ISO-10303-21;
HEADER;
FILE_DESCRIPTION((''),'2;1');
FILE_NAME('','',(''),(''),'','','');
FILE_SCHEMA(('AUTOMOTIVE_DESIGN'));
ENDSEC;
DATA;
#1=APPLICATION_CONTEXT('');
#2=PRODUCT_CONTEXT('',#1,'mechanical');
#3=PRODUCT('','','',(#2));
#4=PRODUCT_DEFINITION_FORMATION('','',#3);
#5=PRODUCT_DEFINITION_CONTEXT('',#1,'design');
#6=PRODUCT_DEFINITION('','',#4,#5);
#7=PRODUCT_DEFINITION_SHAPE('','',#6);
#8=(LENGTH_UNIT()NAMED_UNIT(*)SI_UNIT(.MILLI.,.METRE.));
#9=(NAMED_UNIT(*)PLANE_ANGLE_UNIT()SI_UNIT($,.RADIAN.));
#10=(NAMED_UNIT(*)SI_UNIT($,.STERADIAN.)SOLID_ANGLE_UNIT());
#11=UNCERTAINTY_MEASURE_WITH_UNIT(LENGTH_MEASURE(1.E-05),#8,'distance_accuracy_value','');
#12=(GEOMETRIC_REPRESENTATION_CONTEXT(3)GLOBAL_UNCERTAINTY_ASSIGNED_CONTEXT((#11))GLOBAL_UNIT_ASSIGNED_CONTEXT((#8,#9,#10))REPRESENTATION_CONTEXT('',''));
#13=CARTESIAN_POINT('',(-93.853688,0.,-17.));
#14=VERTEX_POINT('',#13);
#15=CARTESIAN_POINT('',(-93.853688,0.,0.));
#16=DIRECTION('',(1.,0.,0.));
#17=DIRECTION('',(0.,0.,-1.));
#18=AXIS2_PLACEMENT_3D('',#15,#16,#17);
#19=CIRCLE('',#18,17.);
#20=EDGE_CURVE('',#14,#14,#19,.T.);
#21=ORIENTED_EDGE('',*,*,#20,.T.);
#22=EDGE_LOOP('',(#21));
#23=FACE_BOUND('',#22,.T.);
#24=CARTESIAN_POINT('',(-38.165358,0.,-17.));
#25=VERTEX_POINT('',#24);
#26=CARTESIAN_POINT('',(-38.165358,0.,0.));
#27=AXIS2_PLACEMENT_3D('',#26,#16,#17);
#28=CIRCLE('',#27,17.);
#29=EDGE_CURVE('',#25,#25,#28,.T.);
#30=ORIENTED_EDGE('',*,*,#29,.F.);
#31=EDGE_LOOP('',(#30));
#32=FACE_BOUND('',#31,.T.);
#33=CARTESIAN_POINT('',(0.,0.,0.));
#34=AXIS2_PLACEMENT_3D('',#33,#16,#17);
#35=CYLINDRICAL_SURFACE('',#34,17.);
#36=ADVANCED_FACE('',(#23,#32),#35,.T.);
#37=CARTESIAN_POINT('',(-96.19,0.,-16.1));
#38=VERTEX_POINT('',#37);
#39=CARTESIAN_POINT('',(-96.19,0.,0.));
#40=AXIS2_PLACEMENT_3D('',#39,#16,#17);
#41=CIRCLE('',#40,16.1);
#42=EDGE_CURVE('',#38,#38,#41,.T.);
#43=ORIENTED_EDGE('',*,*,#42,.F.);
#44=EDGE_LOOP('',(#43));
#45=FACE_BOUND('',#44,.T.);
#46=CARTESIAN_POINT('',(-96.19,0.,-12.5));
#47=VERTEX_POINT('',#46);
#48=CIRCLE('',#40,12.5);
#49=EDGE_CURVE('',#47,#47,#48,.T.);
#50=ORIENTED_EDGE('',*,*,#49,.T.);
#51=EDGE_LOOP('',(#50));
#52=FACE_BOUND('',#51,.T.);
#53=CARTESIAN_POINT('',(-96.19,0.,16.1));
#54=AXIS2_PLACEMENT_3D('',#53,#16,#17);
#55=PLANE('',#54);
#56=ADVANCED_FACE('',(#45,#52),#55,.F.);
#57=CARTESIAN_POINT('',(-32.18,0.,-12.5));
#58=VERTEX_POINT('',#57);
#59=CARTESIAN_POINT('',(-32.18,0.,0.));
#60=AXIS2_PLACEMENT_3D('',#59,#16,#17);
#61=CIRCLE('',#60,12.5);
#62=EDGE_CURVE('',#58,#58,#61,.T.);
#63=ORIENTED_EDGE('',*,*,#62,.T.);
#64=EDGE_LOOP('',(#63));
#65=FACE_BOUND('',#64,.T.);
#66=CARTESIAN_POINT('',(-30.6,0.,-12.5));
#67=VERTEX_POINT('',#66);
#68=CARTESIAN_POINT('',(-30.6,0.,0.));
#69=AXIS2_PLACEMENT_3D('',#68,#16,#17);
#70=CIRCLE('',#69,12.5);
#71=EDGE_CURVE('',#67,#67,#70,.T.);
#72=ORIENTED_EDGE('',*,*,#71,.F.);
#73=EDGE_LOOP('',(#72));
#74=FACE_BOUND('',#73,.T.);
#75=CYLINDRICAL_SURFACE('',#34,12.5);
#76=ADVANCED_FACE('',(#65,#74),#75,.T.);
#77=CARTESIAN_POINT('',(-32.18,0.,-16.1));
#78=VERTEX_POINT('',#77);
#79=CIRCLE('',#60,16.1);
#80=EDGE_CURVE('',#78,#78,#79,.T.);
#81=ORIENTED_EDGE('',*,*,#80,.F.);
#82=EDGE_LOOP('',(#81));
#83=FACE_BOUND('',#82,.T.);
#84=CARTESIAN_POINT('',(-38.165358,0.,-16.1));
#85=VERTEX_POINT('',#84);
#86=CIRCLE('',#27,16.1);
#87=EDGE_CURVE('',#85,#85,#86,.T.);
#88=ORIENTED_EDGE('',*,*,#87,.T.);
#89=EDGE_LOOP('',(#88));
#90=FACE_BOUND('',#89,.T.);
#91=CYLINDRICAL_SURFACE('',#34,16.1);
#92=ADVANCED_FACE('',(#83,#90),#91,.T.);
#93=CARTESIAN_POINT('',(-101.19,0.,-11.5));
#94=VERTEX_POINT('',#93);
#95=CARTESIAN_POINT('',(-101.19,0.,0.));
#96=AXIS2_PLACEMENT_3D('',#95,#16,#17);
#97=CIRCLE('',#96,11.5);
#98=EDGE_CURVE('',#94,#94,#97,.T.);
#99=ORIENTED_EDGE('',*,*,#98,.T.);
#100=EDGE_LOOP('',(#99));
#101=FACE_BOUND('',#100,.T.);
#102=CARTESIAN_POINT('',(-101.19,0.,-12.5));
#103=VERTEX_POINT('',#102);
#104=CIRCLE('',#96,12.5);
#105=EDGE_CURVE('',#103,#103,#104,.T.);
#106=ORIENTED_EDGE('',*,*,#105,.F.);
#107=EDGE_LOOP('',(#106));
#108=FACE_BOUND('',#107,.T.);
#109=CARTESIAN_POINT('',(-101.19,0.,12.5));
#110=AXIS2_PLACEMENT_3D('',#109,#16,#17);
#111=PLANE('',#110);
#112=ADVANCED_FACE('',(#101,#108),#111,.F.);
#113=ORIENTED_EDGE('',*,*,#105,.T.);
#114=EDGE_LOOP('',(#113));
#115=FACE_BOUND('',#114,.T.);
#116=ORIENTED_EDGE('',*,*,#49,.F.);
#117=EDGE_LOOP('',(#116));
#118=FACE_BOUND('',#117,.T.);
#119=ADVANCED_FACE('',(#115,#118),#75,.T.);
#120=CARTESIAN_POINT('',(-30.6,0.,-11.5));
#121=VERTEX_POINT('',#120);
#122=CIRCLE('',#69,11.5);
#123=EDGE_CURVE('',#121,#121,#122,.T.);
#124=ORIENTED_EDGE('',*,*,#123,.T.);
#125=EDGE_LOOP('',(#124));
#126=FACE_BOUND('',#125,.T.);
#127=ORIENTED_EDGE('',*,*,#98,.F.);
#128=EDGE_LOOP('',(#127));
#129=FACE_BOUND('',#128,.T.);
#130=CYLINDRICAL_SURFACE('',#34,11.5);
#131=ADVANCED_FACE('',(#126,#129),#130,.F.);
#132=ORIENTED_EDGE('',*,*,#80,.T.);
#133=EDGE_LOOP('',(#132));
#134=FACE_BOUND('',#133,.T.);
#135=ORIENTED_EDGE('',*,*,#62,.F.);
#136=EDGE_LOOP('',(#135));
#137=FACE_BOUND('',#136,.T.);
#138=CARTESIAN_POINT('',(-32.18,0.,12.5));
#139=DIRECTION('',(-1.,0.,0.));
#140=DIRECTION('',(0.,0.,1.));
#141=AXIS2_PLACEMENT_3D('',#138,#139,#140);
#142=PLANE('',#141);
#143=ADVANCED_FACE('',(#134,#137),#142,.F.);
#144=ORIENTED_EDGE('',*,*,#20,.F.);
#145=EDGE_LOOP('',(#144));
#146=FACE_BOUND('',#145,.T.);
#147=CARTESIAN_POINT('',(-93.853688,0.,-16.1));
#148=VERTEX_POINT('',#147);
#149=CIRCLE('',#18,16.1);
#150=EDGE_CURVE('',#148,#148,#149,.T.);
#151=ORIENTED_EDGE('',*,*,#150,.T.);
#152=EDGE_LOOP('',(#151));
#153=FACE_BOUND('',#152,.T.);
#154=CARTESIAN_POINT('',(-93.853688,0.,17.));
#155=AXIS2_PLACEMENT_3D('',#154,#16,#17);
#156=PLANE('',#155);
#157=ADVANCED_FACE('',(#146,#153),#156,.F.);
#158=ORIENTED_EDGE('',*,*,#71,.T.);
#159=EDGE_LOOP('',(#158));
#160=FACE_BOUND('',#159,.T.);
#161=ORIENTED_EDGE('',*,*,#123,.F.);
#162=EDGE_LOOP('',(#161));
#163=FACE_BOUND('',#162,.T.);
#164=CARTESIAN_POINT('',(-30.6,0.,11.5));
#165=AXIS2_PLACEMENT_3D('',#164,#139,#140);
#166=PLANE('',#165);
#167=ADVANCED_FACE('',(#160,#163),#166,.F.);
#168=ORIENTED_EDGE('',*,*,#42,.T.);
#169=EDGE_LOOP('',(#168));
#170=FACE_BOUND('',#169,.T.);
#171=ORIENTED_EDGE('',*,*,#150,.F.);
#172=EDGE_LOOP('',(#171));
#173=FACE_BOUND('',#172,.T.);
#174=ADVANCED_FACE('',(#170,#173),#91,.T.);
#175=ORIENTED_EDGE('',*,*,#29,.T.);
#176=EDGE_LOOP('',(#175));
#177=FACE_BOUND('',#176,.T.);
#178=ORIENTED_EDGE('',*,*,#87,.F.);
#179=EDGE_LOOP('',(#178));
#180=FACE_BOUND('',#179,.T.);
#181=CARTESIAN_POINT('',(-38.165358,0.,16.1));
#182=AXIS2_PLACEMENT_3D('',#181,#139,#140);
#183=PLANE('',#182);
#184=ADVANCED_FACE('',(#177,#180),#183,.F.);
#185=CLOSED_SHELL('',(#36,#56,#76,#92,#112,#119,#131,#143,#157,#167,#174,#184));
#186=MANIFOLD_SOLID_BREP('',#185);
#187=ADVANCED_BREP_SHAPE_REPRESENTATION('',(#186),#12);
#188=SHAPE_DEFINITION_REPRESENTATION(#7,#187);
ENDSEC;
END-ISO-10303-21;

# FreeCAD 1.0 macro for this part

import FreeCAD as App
import Part
import Sketcher

V = App.Vector
Q = App.Units.Quantity


def add_polygon(sketch, points):
    """Adds a closed chain of lines whose ends are joined by coincident constraints."""
    first, n = sketch.GeometryCount, len(points)
    for a, b in zip(points, points[1:] + points[:1]):
        sketch.addGeometry(Part.LineSegment(App.Vector(*a, 0), App.Vector(*b, 0)), False)
    for i in range(n):
        sketch.addConstraint(Sketcher.Constraint("Coincident", first + i, 2, first + (i + 1) % n, 1))

doc = App.newDocument("Part")
body = doc.addObject("PartDesign::Body", "Body")

# Sketch on XZ plane
sketch1 = doc.addObject("Sketcher::SketchObject", "Sketch")
body.addObject(sketch1)
sketch1.AttachmentSupport = (doc.XZ_Plane, [""])
sketch1.MapMode = "FlatFace"
add_polygon(sketch1, [(-30.6, 12.5), (-30.6, 11.5), (-101.2, 11.5), (-101.2, 12.5), (-96.2, 12.5), (-96.2, 16.1), (-93.9, 16.1), (-93.9, 17), (-38.2, 17), (-38.2, 16.1), (-32.2, 16.1), (-32.2, 12.5)])  # lines 0-11
sketch1.addConstraint(Sketcher.Constraint("Vertical", 0))
sketch1.addConstraint(Sketcher.Constraint("Horizontal", 1))
sketch1.addConstraint(Sketcher.Constraint("Vertical", 2))
sketch1.addConstraint(Sketcher.Constraint("Horizontal", 3))
sketch1.addConstraint(Sketcher.Constraint("Vertical", 4))
sketch1.addConstraint(Sketcher.Constraint("Horizontal", 5))
sketch1.addConstraint(Sketcher.Constraint("Vertical", 6))
sketch1.addConstraint(Sketcher.Constraint("Horizontal", 7))
sketch1.addConstraint(Sketcher.Constraint("Vertical", 8))
sketch1.addConstraint(Sketcher.Constraint("Horizontal", 9))
sketch1.addConstraint(Sketcher.Constraint("Vertical", 10))
sketch1.addConstraint(Sketcher.Constraint("Horizontal", 11))
sketch1.addConstraint(Sketcher.Constraint("Horizontal", 5, 2, 8, 2))
sketch1.addConstraint(Sketcher.Constraint("Horizontal", 3, 2, 10, 2))
sketch1.addConstraint(Sketcher.Constraint("DistanceX", 3, 1, 3, 2, Q("5 mm")))
sketch1.addConstraint(Sketcher.Constraint("DistanceY", 0, 2, 0, 1, Q("1 mm")))
sketch1.addConstraint(Sketcher.Constraint("DistanceY", 4, 1, 4, 2, Q("3.6 mm")))
sketch1.addConstraint(Sketcher.Constraint("DistanceY", 6, 1, 6, 2, Q("0.9 mm")))
sketch1.addConstraint(Sketcher.Constraint("DistanceY", -1, 1, 6, 2, Q("17 mm")))
sketch1.addConstraint(Sketcher.Constraint("DistanceX", 1, 2, 1, 1, Q("70.59 mm")))
sketch1.addConstraint(Sketcher.Constraint("DistanceX", 11, 1, 11, 2, Q("1.58 mm")))
sketch1.addConstraint(Sketcher.Constraint("DistanceX", 0, 2, -1, 1, Q("30.6 mm")))
sketch1.addConstraint(Sketcher.Constraint("DistanceX", 7, 1, 7, 2, Q("55.68833 mm")))
sketch1.addConstraint(Sketcher.Constraint("DistanceX", 5, 1, 5, 2, Q("2.336312 mm")))
revolution = doc.addObject("PartDesign::Revolution", "Revolution")
body.addObject(revolution)
revolution.Profile = sketch1
revolution.ReferenceAxis = (sketch1, ["H_Axis"])
revolution.Angle = 360

doc.recompute()
